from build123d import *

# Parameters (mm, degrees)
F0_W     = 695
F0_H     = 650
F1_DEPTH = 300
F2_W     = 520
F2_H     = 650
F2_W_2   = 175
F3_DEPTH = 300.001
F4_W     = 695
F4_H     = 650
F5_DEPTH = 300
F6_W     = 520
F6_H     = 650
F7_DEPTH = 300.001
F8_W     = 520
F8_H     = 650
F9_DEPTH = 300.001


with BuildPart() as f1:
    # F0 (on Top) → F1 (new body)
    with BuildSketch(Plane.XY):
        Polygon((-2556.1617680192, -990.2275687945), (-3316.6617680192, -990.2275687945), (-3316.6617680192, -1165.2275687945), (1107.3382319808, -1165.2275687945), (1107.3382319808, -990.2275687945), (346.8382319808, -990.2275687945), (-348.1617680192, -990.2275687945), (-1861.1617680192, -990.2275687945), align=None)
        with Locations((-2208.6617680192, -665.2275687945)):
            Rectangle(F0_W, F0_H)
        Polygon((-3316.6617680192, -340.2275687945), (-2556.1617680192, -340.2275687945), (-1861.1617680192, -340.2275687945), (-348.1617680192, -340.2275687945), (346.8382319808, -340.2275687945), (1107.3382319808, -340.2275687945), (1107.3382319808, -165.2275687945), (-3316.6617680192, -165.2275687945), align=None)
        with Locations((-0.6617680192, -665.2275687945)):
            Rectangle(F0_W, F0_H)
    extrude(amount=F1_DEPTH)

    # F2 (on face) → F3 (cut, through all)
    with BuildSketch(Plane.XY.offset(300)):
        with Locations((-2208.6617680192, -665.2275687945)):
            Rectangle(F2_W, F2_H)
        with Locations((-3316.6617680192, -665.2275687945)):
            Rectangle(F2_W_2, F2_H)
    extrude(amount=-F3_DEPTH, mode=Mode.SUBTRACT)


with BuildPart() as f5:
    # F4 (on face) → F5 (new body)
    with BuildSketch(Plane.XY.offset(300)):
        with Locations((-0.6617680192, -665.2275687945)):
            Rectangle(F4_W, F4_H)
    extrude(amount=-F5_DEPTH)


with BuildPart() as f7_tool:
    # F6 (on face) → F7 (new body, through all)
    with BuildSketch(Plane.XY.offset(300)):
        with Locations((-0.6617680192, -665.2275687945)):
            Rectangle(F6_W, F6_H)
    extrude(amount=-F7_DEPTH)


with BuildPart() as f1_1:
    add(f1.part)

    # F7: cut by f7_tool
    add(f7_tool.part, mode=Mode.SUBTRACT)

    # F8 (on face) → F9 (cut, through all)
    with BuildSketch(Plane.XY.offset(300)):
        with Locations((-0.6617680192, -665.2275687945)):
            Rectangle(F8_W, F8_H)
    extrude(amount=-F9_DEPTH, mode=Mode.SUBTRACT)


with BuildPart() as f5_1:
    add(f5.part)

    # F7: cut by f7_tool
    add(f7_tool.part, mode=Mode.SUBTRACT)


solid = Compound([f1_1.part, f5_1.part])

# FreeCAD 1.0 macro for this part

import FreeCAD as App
import Part
import Sketcher
from FreeCAD import Vector


def add_polygon(sketch, points):
    """Adds a closed chain of lines whose ends are joined by coincident constraints."""
    first, n = sketch.GeometryCount, len(points)
    for a, b in zip(points, points[1:] + points[:1]):
        sketch.addGeometry(Part.LineSegment(App.Vector(*a, 0), App.Vector(*b, 0)), False)
    for i in range(n):
        sketch.addConstraint(Sketcher.Constraint("Coincident", first + i, 2, first + (i + 1) % n, 1))

doc = App.newDocument("Part")
body = doc.addObject("PartDesign::Body", "Body")

sketch1 = body.newObject("Sketcher::SketchObject", "Sketch")
sketch1.AttachmentSupport = (doc.getObject("XY_Plane"), [""])
sketch1.MapMode = "FlatFace"
add_polygon(sketch1, [(-3317, -990), (-3317, -1165), (1107, -1165), (1107, -990), (347, -990), (347, -340), (1107, -340), (1107, -165), (-3317, -165), (-3317, -340), (-2556, -340), (-2556, -990)])
add_polygon(sketch1, [(-348, -990), (-1861, -990), (-1861, -340), (-348, -340)])
sketch1.addConstraint([
    Sketcher.Constraint("Vertical", 0),
    Sketcher.Constraint("Horizontal", 1),
    Sketcher.Constraint("Vertical", 2),
    Sketcher.Constraint("Horizontal", 3),
    Sketcher.Constraint("Vertical", 4),
    Sketcher.Constraint("Horizontal", 5),
    Sketcher.Constraint("Vertical", 6),
    Sketcher.Constraint("Horizontal", 7),
    Sketcher.Constraint("Vertical", 8),
    Sketcher.Constraint("Horizontal", 9),
    Sketcher.Constraint("Vertical", 10),
    Sketcher.Constraint("Horizontal", 11),
    Sketcher.Constraint("Horizontal", 12),
    Sketcher.Constraint("Vertical", 13),
    Sketcher.Constraint("Horizontal", 14),
    Sketcher.Constraint("Vertical", 15),
    Sketcher.Constraint("Horizontal", 5, 2, 8, 2),
    Sketcher.Constraint("Horizontal", 3, 2, 10, 2),
    Sketcher.Constraint("Horizontal", 11, 2, 12, 2),
    Sketcher.Constraint("Horizontal", 9, 2, 13, 2),
    Sketcher.Constraint("Vertical", 2, 2, 5, 2),
    Sketcher.Constraint("Vertical", 0, 2, 7, 2),
    Sketcher.Constraint("Equal", 5, 9),
    Sketcher.Constraint("Equal", 2, 6),
    Sketcher.Constraint("DistanceX", 1, 1, 1, 2, 4424.0),
    Sketcher.Constraint("DistanceX", 12, 2, 12, 1, 1513.0),
    Sketcher.Constraint("DistanceY", 0, 2, 0, 1, 175.0),
    Sketcher.Constraint("DistanceY", 4, 1, 4, 2, 650.0),
    Sketcher.Constraint("DistanceX", 3, 2, 3, 1, 760.5),
    Sketcher.Constraint("DistanceX", 10, 2, 12, 2, 695.0),
    Sketcher.Constraint("DistanceX", 0, 2, -1, 1, 3316.661768),
    Sketcher.Constraint("DistanceY", 0, 2, -1, 1, 1165.227569),
])
pad1 = body.newObject("PartDesign::Pad", "Pad")
pad1.Profile = sketch1
pad1.Length = 300

sketch2 = body.newObject("Sketcher::SketchObject", "Sketch001")
sketch2.AttachmentSupport = (doc.getObject("XY_Plane"), [""])
sketch2.MapMode = "FlatFace"
sketch2.AttachmentOffset = App.Placement(Vector(0, 0, 300), App.Rotation())
add_polygon(sketch2, [(-2469, -340), (-2469, -990), (-1949, -990), (-1949, -340)])
add_polygon(sketch2, [(-3404, -340), (-3404, -990), (-3229, -990), (-3229, -340)])
sketch2.addConstraint([
    Sketcher.Constraint("Vertical", 0),
    Sketcher.Constraint("Horizontal", 1),
    Sketcher.Constraint("Vertical", 2),
    Sketcher.Constraint("Horizontal", 3),
    Sketcher.Constraint("Vertical", 4),
    Sketcher.Constraint("Horizontal", 5),
    Sketcher.Constraint("Vertical", 6),
    Sketcher.Constraint("Horizontal", 7),
    Sketcher.Constraint("Horizontal", 1, 2, 4, 2),
    Sketcher.Constraint("Horizontal", 3, 2, 6, 2),
    Sketcher.Constraint("DistanceX", 1, 1, 1, 2, 520.0),
    Sketcher.Constraint("DistanceX", 5, 1, 5, 2, 175.0),
    Sketcher.Constraint("DistanceY", 0, 2, 0, 1, 650.0),
    Sketcher.Constraint("DistanceX", 4, 2, 0, 2, 935.5),
    Sketcher.Constraint("DistanceX", 0, 2, -1, 1, 2468.661768),
    Sketcher.Constraint("DistanceY", 0, 2, -1, 1, 990.227569),
])
pocket1 = body.newObject("PartDesign::Pocket", "Pocket")
pocket1.Profile = sketch2
pocket1.Type = "ThroughAll"
body2 = doc.addObject("PartDesign::Body", "Body001")

sketch3 = body2.newObject("Sketcher::SketchObject", "Sketch002")
sketch3.AttachmentSupport = (doc.getObject("XY_Plane001"), [""])
sketch3.MapMode = "FlatFace"
sketch3.AttachmentOffset = App.Placement(Vector(0, 0, 300), App.Rotation())
add_polygon(sketch3, [(-348, -340), (-348, -990), (347, -990), (347, -340)])
sketch3.addConstraint([
    Sketcher.Constraint("Vertical", 0),
    Sketcher.Constraint("Horizontal", 1),
    Sketcher.Constraint("Vertical", 2),
    Sketcher.Constraint("Horizontal", 3),
    Sketcher.Constraint("DistanceX", 1, 1, 1, 2, 695.0),
    Sketcher.Constraint("DistanceY", 0, 2, 0, 1, 650.0),
    Sketcher.Constraint("DistanceX", 0, 2, -1, 1, 348.161768),
    Sketcher.Constraint("DistanceY", 0, 2, -1, 1, 990.227569),
])
pad2 = body2.newObject("PartDesign::Pad", "Pad001")
pad2.Profile = sketch3
pad2.Length = 300
pad2.Reversed = True
body3 = doc.addObject("PartDesign::Body", "Body002")

sketch4 = body3.newObject("Sketcher::SketchObject", "Sketch003")
sketch4.AttachmentSupport = (doc.getObject("XY_Plane002"), [""])
sketch4.MapMode = "FlatFace"
sketch4.AttachmentOffset = App.Placement(Vector(0, 0, 300), App.Rotation())
add_polygon(sketch4, [(-261, -340), (-261, -990), (259, -990), (259, -340)])
sketch4.addConstraint([
    Sketcher.Constraint("Vertical", 0),
    Sketcher.Constraint("Horizontal", 1),
    Sketcher.Constraint("Vertical", 2),
    Sketcher.Constraint("Horizontal", 3),
    Sketcher.Constraint("DistanceX", 1, 1, 1, 2, 520.0),
    Sketcher.Constraint("DistanceY", 0, 2, 0, 1, 650.0),
    Sketcher.Constraint("DistanceX", 0, 2, -1, 1, 260.661768),
    Sketcher.Constraint("DistanceY", 0, 2, -1, 1, 990.227569),
])
pad3 = body3.newObject("PartDesign::Pad", "Pad002")
pad3.Profile = sketch4
pad3.Length = 300.001
pad3.Reversed = True
doc.recompute()

body4 = doc.addObject("PartDesign::Body", "Body003")
body4.BaseFeature = body3
boolean = body.newObject("PartDesign::Boolean", "Boolean")
boolean.Type = "Cut"
boolean.addObjects([body4])
doc.recompute()

sketch5 = body.newObject("Sketcher::SketchObject", "Sketch004")
sketch5.AttachmentSupport = (doc.getObject("XY_Plane"), [""])
sketch5.MapMode = "FlatFace"
sketch5.AttachmentOffset = App.Placement(Vector(0, 0, 300), App.Rotation())
add_polygon(sketch5, [(-261, -340), (-261, -990), (259, -990), (259, -340)])
sketch5.addConstraint([
    Sketcher.Constraint("Vertical", 0),
    Sketcher.Constraint("Horizontal", 1),
    Sketcher.Constraint("Vertical", 2),
    Sketcher.Constraint("Horizontal", 3),
    Sketcher.Constraint("DistanceX", 1, 1, 1, 2, 520.0),
    Sketcher.Constraint("DistanceY", 0, 2, 0, 1, 650.0),
    Sketcher.Constraint("DistanceX", 0, 2, -1, 1, 260.661768),
    Sketcher.Constraint("DistanceY", 0, 2, -1, 1, 990.227569),
])
pocket2 = body.newObject("PartDesign::Pocket", "Pocket001")
pocket2.Profile = sketch5
pocket2.Type = "ThroughAll"
body2.AllowCompound = True
doc.recompute()

boolean2 = body2.newObject("PartDesign::Boolean", "Boolean001")
boolean2.Type = "Cut"
boolean2.addObjects([body3])

doc.recompute()
